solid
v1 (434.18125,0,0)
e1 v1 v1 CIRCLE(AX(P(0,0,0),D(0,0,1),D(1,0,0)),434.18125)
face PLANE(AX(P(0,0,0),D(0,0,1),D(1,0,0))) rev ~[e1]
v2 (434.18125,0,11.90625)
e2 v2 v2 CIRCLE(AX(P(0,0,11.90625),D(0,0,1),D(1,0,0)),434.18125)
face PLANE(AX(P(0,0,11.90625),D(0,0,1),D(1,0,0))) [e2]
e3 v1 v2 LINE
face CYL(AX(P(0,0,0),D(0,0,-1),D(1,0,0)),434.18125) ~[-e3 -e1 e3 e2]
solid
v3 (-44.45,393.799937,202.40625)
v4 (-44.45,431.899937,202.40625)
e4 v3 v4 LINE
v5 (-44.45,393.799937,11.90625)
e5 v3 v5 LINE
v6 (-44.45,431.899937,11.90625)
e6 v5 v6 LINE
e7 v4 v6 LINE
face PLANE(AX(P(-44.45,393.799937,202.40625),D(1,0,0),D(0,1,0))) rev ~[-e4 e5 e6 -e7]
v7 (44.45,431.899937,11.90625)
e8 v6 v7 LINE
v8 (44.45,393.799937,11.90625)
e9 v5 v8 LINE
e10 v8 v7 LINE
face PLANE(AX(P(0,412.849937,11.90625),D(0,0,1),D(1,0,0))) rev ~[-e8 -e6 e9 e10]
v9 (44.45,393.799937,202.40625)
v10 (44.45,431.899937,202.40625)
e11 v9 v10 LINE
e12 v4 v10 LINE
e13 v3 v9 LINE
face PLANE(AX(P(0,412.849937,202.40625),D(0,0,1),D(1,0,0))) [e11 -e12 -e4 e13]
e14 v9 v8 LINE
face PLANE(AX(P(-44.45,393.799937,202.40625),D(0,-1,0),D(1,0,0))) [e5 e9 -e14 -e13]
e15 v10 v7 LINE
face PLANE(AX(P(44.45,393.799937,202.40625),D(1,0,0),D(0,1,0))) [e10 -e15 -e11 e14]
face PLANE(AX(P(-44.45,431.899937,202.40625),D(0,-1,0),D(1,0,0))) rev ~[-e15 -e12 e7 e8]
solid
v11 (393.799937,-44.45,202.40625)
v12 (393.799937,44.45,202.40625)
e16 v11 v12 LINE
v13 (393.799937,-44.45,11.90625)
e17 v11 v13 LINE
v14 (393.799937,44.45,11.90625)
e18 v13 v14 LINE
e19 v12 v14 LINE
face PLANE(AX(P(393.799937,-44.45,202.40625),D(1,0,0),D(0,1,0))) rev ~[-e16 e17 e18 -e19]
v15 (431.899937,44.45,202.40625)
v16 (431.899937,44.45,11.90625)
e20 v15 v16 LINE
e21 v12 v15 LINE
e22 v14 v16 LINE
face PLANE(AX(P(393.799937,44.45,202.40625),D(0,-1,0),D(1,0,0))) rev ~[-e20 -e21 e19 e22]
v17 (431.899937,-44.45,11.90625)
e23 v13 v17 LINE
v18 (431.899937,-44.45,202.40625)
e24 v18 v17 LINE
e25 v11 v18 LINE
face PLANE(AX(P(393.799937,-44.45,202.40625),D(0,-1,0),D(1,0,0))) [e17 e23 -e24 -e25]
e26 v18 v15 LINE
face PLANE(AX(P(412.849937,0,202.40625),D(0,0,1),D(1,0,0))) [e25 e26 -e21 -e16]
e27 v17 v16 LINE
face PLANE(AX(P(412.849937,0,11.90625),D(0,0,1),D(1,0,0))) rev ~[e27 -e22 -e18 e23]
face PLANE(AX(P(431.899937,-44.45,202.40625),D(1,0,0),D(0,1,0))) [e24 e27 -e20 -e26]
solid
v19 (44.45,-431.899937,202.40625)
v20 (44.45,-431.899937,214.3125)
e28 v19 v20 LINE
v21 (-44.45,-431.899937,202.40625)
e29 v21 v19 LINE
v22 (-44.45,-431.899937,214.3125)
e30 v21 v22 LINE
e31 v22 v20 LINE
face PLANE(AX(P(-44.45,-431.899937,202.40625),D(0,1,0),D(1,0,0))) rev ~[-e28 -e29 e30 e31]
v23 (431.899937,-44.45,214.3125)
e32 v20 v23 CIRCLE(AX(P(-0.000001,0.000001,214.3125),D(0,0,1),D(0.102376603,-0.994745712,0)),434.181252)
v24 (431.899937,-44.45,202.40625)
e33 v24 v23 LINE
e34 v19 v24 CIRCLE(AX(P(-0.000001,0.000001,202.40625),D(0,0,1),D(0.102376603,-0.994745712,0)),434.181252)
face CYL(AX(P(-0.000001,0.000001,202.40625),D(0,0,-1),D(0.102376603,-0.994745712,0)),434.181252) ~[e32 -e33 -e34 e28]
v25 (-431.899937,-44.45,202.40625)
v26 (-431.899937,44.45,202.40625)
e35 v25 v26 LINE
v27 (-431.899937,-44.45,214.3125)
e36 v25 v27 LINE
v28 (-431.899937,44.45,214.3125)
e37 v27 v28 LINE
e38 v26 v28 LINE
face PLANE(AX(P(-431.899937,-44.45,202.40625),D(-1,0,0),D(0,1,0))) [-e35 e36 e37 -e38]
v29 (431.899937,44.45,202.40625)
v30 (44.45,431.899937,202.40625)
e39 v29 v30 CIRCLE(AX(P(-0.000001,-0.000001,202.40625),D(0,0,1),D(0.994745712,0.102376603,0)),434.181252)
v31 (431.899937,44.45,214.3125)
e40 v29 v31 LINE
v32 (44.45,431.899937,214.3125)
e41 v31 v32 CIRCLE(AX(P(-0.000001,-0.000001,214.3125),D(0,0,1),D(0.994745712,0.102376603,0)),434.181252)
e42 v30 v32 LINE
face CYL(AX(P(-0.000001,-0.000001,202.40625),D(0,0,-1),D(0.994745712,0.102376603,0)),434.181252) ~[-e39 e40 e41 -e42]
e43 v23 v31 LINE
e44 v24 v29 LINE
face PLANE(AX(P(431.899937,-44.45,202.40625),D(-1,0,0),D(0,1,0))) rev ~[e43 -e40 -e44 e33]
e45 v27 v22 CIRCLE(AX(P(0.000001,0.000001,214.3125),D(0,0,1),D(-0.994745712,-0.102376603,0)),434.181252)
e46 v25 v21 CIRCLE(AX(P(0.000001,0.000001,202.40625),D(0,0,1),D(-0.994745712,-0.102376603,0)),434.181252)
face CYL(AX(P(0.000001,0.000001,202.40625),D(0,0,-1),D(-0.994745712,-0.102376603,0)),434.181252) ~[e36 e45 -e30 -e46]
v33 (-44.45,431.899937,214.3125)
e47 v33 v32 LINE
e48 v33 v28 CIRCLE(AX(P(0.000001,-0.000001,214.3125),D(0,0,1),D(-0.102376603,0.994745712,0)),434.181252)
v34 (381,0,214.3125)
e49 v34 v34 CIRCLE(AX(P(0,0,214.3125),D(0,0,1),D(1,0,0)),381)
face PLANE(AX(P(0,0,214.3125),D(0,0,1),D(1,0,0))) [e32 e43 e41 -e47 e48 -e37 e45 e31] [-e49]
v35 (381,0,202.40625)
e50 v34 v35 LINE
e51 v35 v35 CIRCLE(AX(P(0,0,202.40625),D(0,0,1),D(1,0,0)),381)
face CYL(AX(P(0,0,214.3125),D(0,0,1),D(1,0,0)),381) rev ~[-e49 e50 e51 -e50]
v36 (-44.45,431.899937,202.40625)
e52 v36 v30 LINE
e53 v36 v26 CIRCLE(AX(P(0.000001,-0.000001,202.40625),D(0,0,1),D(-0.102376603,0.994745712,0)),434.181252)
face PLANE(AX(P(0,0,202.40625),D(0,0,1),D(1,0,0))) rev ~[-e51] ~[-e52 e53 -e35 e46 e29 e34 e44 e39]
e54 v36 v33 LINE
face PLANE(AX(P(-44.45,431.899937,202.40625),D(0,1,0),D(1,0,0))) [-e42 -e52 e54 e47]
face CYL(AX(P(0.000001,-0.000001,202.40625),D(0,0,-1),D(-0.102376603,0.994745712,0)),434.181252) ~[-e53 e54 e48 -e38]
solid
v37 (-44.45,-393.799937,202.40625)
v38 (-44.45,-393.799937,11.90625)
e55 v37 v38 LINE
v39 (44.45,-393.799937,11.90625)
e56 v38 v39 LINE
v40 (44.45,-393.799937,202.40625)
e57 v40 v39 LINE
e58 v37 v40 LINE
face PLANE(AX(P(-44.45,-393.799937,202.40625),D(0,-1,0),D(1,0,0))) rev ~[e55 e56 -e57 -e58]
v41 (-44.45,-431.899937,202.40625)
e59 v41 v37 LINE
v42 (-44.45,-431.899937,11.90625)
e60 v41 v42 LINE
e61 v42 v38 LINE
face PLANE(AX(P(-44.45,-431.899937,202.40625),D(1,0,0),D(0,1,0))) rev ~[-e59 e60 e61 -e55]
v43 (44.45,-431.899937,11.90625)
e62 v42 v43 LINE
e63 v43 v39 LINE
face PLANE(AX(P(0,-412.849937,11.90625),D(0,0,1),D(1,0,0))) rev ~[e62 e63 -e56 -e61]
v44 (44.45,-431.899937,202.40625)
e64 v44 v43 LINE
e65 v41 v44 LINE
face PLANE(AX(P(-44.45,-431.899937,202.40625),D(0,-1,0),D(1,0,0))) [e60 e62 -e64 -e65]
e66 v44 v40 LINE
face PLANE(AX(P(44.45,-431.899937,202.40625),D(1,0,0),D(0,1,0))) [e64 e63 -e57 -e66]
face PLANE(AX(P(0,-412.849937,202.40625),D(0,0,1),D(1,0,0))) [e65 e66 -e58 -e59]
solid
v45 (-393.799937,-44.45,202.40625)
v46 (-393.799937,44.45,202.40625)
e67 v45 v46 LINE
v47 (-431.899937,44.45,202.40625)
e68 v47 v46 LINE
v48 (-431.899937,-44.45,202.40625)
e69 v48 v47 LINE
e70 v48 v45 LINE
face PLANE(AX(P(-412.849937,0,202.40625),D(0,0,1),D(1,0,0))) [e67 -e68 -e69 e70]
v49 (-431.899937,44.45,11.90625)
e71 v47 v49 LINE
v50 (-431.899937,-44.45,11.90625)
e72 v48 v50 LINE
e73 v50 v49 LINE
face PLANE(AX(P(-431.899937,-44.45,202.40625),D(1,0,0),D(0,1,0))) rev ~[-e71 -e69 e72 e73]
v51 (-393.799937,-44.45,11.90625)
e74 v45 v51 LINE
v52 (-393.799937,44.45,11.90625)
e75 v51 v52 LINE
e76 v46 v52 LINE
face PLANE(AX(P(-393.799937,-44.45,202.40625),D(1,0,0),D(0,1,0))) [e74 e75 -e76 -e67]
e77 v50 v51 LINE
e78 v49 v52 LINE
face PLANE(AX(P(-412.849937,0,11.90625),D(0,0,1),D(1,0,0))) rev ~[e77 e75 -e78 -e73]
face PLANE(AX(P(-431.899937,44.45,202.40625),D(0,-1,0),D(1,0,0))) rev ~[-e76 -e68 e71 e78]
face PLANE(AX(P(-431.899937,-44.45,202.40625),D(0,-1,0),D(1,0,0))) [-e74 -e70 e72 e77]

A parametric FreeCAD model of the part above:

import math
import FreeCAD as App
import Part
import Sketcher
from FreeCAD import Vector
Q = App.Units.Quantity


def add_polygon(sketch, points):
    """Adds a closed chain of lines whose ends are joined by coincident constraints."""
    first, n = sketch.GeometryCount, len(points)
    for a, b in zip(points, points[1:] + points[:1]):
        sketch.addGeometry(Part.LineSegment(App.Vector(*a, 0), App.Vector(*b, 0)), False)
    for i in range(n):
        sketch.addConstraint(Sketcher.Constraint("Coincident", first + i, 2, first + (i + 1) % n, 1))

doc = App.newDocument("Part")
body = doc.addObject("PartDesign::Body", "Body")

# Sketch on XY plane
sketch1 = body.newObject("Sketcher::SketchObject", "Sketch")
sketch1.AttachmentSupport = (doc.getObject("XY_Plane"), [""])
sketch1.MapMode = "FlatFace"
sketch1.addGeometry(Part.Circle(Vector(0, 0, 0), Vector(0, 0, 1), 434), False)
sketch1.addConstraint([
    Sketcher.Constraint("Coincident", 0, 3, -1, 1),
    Sketcher.Constraint("Diameter", 0, Q("34.1875 in")),
])
pad1 = body.newObject("PartDesign::Pad", "Pad")
pad1.Profile = sketch1
pad1.Length = Q("0.46875 in")
body2 = doc.addObject("PartDesign::Body", "Body001")
body2.AllowCompound = True

# Sketch on XY plane
sketch2 = body2.newObject("Sketcher::SketchObject", "Sketch001")
sketch2.AttachmentSupport = (doc.getObject("XY_Plane001"), [""])
sketch2.MapMode = "FlatFace"
sketch2.AttachmentOffset = App.Placement(Vector(0, 0, 7.96875 * 25.4), App.Rotation())
add_polygon(sketch2, [(-44, 432), (-44, 394), (44, 394), (44, 432)])  # lines 0-3
add_polygon(sketch2, [(394, 44), (394, -44), (432, -44), (432, 44)])  # lines 4-7
add_polygon(sketch2, [(-44, -394), (-44, -432), (44, -432), (44, -394)])  # lines 8-11
add_polygon(sketch2, [(-432, 44), (-432, -44), (-394, -44), (-394, 44)])  # lines 12-15
sketch2.addConstraint([
    Sketcher.Constraint("Vertical", 0),
    Sketcher.Constraint("Horizontal", 1),
    Sketcher.Constraint("Vertical", 2),
    Sketcher.Constraint("Horizontal", 3),
    Sketcher.Constraint("Vertical", 4),
    Sketcher.Constraint("Horizontal", 5),
    Sketcher.Constraint("Vertical", 6),
    Sketcher.Constraint("Horizontal", 7),
    Sketcher.Constraint("Vertical", 8),
    Sketcher.Constraint("Horizontal", 9),
    Sketcher.Constraint("Vertical", 10),
    Sketcher.Constraint("Horizontal", 11),
    Sketcher.Constraint("Vertical", 12),
    Sketcher.Constraint("Horizontal", 13),
    Sketcher.Constraint("Vertical", 14),
    Sketcher.Constraint("Horizontal", 15),
    Sketcher.Constraint("Symmetric", 2, 2, 8, 2, -1, 1),
    Sketcher.Constraint("Symmetric", 0, 2, 10, 2, -1, 1),
    Sketcher.Constraint("Symmetric", 6, 2, 12, 2, -1, 1),
    Sketcher.Constraint("Symmetric", 4, 2, 14, 2, -1, 1),
    Sketcher.Constraint("Horizontal", 5, 2, 12, 2),
    Sketcher.Constraint("Vertical", 3, 2, 8, 2),
    Sketcher.Constraint("Equal", 15, 0),
    Sketcher.Constraint("Equal", 11, 4),
    Sketcher.Constraint("DistanceX", 1, 1, 1, 2, Q("3.5 in")),
    Sketcher.Constraint("DistanceX", 5, 1, 5, 2, Q("1.5 in")),
    Sketcher.Constraint("DistanceY", -1, 1, 0, 2, 393.799937),
    Sketcher.Constraint("DistanceX", -1, 1, 4, 2, 393.799937),
])
pad2 = body2.newObject("PartDesign::Pad", "Pad001")
pad2.Profile = sketch2
pad2.Length = Q("7.5 in")
pad2.Reversed = True
body3 = doc.addObject("PartDesign::Body", "Body002")

# Sketch on XY plane
sketch3 = body3.newObject("Sketcher::SketchObject", "Sketch002")
sketch3.AttachmentSupport = (doc.getObject("XY_Plane002"), [""])
sketch3.MapMode = "FlatFace"
sketch3.AttachmentOffset = App.Placement(Vector(0, 0, 7.96875 * 25.4), App.Rotation())
sketch3.addGeometry([
    Part.ArcOfCircle(Part.Circle(Vector(0, 0, 0), Vector(0, 0, 1), 434), math.radians(6), math.radians(84)),  # 0
    Part.LineSegment(Vector(44, 432, 0), Vector(-44, 432, 0)),  # 1
    Part.ArcOfCircle(Part.Circle(Vector(0, 0, 0), Vector(0, 0, 1), 434), math.radians(96), math.radians(174)),  # 2
    Part.LineSegment(Vector(-432, 44, 0), Vector(-432, -44, 0)),  # 3
    Part.ArcOfCircle(Part.Circle(Vector(0, 0, 0), Vector(0, 0, 1), 434), math.radians(-174), math.radians(-96)),  # 4
    Part.LineSegment(Vector(-44, -432, 0), Vector(44, -432, 0)),  # 5
    Part.ArcOfCircle(Part.Circle(Vector(0, 0, 0), Vector(0, 0, 1), 434), math.radians(-84), math.radians(-6)),  # 6
    Part.LineSegment(Vector(432, -44, 0), Vector(432, 44, 0)),  # 7
], False)
sketch3.addConstraint([
    Sketcher.Constraint("Coincident", 0, 2, 1, 1),
    Sketcher.Constraint("Coincident", 1, 2, 2, 1),
    Sketcher.Constraint("Coincident", 2, 2, 3, 1),
    Sketcher.Constraint("Coincident", 3, 2, 4, 1),
    Sketcher.Constraint("Coincident", 4, 2, 5, 1),
    Sketcher.Constraint("Coincident", 5, 2, 6, 1),
    Sketcher.Constraint("Coincident", 6, 2, 7, 1),
    Sketcher.Constraint("Coincident", 7, 2, 0, 1),
    Sketcher.Constraint("Horizontal", 1),
    Sketcher.Constraint("Vertical", 3),
    Sketcher.Constraint("Horizontal", 5),
    Sketcher.Constraint("Vertical", 7),
    Sketcher.Constraint("Coincident", 0, 3, -1, 1),
    Sketcher.Constraint("Coincident", 2, 3, -1, 1),
    Sketcher.Constraint("Coincident", 4, 3, -1, 1),
    Sketcher.Constraint("Coincident", 6, 3, -1, 1),
    Sketcher.Constraint("Equal", 0, 2),
    Sketcher.Constraint("Equal", 2, 4),
    Sketcher.Constraint("Equal", 4, 6),
    Sketcher.Constraint("Horizontal", 3, 2, 6, 2),
    Sketcher.Constraint("Vertical", 1, 2, 4, 2),
    Sketcher.Constraint("Equal", 5, 3),
    Sketcher.Constraint("DistanceX", 1, 2, 1, 1, Q("3.5 in")),
    Sketcher.Constraint("Radius", 0, Q("17.0937501 in")),
])
pad3 = body3.newObject("PartDesign::Pad", "Pad002")
pad3.Profile = sketch3
pad3.Length = Q("0.46875 in")

# Sketch on XY plane
sketch4 = body3.newObject("Sketcher::SketchObject", "Sketch003")
sketch4.AttachmentSupport = (doc.getObject("XY_Plane002"), [""])
sketch4.MapMode = "FlatFace"
sketch4.AttachmentOffset = App.Placement(Vector(0, 0, 8.4375 * 25.4), App.Rotation())
sketch4.addGeometry(Part.Circle(Vector(0, 0, 0), Vector(0, 0, 1), 381), False)
sketch4.addConstraint([
    Sketcher.Constraint("Coincident", 0, 3, -1, 1),
    Sketcher.Constraint("Diameter", 0, Q("30 in")),
])
pocket1 = body3.newObject("PartDesign::Pocket", "Pocket")
pocket1.Profile = sketch4
pocket1.Length = Q("1 in")

doc.recompute()
